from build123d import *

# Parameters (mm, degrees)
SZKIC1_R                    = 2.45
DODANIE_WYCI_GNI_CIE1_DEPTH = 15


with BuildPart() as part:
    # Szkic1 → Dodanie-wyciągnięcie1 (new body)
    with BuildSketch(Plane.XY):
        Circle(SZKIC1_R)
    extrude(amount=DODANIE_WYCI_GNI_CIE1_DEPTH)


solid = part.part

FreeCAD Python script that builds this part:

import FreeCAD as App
import Part
import Sketcher

doc = App.newDocument("Part")
params = doc.addObject("Spreadsheet::Sheet", "Params")
for row, (alias, value) in enumerate([
    ("sketch1_diameter", "4.9 mm"),
    ("pad1_length", "15 mm"),
], start=1):
    params.set(f"A{row}", alias)
    params.set(f"B{row}", "=" + value)
    params.setAlias(f"B{row}", alias)

body = doc.addObject("PartDesign::Body", "Body")

sketch1 = body.newObject("Sketcher::SketchObject", "Sketch")
sketch1.AttachmentSupport = (doc.getObject("XY_Plane"), [""])
sketch1.MapMode = "FlatFace"
sketch1.addGeometry(Part.Circle(App.Vector(0, 0, 0), App.Vector(0, 0, 1), 2.5), False)
sketch1.addConstraint([
    Sketcher.Constraint("Coincident", 0, 3, -1, 1),
    Sketcher.Constraint("Diameter", 0, 4.9),
])
sketch1.setExpression("Constraints[1]", "Params.sketch1_diameter")
pad1 = body.newObject("PartDesign::Pad", "Pad")
pad1.Profile = sketch1
pad1.setExpression("Length", "Params.pad1_length")

doc.recompute()
